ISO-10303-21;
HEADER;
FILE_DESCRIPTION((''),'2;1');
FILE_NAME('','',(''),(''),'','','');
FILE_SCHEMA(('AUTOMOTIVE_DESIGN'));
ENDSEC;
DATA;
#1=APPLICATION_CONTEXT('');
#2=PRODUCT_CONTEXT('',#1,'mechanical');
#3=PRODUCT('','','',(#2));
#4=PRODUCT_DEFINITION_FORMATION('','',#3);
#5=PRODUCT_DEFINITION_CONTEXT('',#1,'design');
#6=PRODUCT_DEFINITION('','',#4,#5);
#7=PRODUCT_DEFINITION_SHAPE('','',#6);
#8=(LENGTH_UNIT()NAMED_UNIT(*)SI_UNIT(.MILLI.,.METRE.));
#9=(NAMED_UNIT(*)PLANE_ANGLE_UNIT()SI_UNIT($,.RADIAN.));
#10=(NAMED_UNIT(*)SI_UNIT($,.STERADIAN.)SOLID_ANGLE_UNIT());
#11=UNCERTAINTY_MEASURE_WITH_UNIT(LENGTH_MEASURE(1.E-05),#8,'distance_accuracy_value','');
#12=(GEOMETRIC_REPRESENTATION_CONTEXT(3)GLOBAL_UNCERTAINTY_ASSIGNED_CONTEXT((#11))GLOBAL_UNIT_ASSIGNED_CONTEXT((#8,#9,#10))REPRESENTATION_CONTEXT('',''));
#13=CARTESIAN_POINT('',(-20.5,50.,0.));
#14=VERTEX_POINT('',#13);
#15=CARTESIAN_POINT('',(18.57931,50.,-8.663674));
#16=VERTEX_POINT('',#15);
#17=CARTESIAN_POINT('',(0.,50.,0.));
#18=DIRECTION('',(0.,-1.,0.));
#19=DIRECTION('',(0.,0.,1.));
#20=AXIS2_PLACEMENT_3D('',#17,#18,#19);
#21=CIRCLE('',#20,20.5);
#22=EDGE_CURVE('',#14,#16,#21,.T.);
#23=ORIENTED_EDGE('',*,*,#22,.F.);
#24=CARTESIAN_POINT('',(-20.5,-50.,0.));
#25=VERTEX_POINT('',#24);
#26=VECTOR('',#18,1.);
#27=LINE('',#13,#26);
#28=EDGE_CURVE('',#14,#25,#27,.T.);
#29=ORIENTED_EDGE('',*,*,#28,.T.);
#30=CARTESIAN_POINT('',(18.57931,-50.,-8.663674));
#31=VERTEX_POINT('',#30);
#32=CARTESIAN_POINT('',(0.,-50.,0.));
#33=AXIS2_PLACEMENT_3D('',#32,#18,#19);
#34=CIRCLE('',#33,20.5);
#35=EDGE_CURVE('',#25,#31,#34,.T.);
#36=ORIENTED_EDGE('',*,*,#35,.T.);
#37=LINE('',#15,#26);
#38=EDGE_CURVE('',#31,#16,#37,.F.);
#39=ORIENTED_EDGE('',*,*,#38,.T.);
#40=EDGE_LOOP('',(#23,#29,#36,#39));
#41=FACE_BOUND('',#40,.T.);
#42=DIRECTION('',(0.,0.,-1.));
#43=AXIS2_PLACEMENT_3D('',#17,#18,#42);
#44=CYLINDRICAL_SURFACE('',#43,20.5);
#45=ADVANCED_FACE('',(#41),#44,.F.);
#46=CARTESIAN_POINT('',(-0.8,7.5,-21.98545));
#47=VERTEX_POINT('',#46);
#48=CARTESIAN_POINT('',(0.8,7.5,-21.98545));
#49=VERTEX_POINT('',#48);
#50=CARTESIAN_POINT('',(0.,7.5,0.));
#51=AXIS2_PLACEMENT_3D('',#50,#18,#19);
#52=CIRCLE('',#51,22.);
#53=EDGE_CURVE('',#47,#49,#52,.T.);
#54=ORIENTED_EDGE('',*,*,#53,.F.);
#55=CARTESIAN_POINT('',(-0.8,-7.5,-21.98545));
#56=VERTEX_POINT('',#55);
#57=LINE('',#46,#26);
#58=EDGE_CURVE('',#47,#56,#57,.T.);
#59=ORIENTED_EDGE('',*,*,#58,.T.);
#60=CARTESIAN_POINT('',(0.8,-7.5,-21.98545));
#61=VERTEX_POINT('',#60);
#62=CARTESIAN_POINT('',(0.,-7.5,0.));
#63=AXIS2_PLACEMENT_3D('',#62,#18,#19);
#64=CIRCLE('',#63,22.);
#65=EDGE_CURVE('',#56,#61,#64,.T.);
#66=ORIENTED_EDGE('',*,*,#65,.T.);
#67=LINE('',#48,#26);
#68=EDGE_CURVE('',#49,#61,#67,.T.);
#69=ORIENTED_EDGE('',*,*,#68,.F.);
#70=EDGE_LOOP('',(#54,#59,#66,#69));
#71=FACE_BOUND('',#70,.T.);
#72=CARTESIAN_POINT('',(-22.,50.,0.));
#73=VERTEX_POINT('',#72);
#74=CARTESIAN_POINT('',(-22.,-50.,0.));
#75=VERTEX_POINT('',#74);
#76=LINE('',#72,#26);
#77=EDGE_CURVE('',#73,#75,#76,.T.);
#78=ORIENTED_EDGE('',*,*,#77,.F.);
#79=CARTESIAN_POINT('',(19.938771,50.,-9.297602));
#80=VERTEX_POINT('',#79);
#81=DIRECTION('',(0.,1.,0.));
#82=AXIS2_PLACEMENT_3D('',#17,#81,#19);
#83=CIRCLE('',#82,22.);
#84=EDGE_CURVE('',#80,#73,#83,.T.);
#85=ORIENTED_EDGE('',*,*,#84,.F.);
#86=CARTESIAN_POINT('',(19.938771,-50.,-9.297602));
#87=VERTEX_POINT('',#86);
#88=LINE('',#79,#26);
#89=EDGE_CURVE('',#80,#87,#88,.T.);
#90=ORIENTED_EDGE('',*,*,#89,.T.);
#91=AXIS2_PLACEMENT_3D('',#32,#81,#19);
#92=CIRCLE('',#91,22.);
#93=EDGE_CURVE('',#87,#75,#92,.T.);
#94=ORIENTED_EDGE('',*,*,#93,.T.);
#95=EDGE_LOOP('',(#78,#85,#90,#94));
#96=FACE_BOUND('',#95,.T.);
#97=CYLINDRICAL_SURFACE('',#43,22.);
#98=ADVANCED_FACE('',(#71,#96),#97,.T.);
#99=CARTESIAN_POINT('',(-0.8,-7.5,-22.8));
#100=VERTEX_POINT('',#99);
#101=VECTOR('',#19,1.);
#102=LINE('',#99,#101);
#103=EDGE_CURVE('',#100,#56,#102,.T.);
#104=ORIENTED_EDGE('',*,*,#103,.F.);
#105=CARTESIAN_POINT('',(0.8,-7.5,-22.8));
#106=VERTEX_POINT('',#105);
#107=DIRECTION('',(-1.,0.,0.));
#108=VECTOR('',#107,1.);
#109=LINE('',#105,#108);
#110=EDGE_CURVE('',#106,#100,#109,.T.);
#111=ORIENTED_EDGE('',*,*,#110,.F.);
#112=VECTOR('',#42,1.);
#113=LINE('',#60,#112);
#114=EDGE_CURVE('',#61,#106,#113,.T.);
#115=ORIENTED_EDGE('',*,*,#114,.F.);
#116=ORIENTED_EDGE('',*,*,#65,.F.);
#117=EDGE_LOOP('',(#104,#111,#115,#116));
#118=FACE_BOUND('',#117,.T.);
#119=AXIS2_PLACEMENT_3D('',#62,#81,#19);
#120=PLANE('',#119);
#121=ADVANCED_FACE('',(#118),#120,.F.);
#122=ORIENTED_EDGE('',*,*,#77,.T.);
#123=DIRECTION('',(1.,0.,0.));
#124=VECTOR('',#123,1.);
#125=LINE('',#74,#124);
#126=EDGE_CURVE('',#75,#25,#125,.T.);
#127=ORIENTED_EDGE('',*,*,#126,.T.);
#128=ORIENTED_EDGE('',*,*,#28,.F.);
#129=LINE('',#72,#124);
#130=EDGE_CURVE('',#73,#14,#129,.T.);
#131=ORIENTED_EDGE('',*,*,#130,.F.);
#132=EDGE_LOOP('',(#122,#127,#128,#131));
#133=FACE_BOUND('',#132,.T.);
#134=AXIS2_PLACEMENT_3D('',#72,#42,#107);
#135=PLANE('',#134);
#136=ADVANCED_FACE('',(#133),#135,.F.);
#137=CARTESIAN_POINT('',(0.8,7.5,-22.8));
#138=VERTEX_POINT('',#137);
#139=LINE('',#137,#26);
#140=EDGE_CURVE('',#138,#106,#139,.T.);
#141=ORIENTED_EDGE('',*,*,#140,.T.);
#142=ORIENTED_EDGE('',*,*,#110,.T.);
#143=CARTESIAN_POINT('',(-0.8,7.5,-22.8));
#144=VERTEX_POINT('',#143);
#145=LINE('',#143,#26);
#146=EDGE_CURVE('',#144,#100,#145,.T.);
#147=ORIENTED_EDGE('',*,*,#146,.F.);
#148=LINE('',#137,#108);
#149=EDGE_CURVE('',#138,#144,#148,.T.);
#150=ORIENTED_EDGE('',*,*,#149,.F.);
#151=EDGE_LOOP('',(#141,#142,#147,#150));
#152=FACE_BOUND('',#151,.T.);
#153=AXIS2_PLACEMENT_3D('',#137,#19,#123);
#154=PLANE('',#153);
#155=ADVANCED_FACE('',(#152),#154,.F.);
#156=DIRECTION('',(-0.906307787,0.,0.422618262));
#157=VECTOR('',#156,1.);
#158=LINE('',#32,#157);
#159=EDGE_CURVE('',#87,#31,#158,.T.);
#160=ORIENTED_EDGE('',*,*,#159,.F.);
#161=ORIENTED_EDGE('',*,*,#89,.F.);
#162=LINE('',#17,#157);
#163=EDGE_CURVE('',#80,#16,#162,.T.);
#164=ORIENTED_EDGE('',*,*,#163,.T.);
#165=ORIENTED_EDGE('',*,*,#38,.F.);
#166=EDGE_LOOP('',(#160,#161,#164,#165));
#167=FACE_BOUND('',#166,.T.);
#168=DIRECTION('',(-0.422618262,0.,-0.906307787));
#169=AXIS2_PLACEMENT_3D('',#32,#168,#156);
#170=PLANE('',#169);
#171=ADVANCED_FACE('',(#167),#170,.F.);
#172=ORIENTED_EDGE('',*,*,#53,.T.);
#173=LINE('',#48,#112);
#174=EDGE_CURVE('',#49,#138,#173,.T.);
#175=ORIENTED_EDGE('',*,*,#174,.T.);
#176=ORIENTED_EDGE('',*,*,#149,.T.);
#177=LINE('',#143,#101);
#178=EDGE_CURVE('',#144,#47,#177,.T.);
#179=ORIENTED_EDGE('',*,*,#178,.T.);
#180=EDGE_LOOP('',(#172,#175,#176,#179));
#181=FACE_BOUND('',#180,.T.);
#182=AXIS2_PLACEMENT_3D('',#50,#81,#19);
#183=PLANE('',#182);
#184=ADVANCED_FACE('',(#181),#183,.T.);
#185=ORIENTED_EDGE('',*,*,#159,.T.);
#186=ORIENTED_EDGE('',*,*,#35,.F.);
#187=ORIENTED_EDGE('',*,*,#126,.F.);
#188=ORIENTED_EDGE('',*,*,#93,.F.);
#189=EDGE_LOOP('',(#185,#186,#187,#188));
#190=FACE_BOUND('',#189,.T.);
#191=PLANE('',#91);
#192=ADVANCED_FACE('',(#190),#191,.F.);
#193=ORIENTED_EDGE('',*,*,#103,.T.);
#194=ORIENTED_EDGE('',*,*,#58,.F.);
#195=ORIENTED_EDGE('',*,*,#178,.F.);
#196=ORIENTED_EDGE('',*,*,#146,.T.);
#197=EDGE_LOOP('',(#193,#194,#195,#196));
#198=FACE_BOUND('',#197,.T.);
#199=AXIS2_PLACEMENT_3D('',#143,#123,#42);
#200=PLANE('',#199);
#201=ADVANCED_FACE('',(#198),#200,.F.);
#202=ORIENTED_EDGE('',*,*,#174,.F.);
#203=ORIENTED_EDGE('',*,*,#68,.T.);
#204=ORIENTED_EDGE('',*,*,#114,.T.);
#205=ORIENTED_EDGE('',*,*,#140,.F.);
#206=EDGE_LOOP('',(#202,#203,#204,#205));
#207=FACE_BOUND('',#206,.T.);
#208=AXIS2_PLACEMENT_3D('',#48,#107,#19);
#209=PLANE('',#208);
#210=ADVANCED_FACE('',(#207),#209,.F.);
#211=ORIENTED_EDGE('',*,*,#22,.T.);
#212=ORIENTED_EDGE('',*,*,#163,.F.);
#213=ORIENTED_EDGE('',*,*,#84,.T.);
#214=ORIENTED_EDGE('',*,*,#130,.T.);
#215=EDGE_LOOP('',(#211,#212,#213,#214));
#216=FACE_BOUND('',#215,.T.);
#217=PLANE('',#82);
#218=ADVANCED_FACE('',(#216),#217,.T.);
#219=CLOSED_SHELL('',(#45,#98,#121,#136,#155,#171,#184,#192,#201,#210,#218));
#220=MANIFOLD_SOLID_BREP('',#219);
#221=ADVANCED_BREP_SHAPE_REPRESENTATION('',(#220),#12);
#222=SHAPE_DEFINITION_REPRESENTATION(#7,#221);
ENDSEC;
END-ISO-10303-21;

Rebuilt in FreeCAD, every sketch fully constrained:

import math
import FreeCAD as App
import Part
import Sketcher

V = App.Vector
Q = App.Units.Quantity


def add_polygon(sketch, points):
    """Adds a closed chain of lines whose ends are joined by coincident constraints."""
    first, n = sketch.GeometryCount, len(points)
    for a, b in zip(points, points[1:] + points[:1]):
        sketch.addGeometry(Part.LineSegment(App.Vector(*a, 0), App.Vector(*b, 0)), False)
    for i in range(n):
        sketch.addConstraint(Sketcher.Constraint("Coincident", first + i, 2, first + (i + 1) % n, 1))

doc = App.newDocument("Part")
body = doc.addObject("PartDesign::Body", "Body")

sketch1 = doc.addObject("Sketcher::SketchObject", "Sketch")
body.addObject(sketch1)
sketch1.AttachmentSupport = (doc.XZ_Plane, [""])
sketch1.MapMode = "FlatFace"
sketch1.addGeometry([
    Part.LineSegment(V(-22, 0, 0), V(-20.5, 0, 0)),
    Part.ArcOfCircle(Part.Circle(V(0, 0, 0), V(0, 0, 1), 20.5), math.radians(180), math.radians(360)),
    Part.LineSegment(V(20.5, 0, 0), V(22, 0, 0)),
    Part.ArcOfCircle(Part.Circle(V(0, 0, 0), V(0, 0, 1), 22), math.radians(-87.916058), math.radians(0)),
    Part.ArcOfCircle(Part.Circle(V(0, 0, 0), V(0, 0, 1), 22), math.radians(180), math.radians(272.083942)),
], False)
sketch1.addConstraint([
    Sketcher.Constraint("Coincident", 0, 2, 1, 1),
    Sketcher.Constraint("Coincident", 1, 2, 2, 1),
    Sketcher.Constraint("Coincident", 2, 2, 3, 2),
    Sketcher.Constraint("Tangent", 3, 1, 4, 2),
    Sketcher.Constraint("Coincident", 4, 1, 0, 1),
    Sketcher.Constraint("Horizontal", 0),
    Sketcher.Constraint("Horizontal", 2),
    Sketcher.Constraint("Coincident", 1, 3, -1, 1),
    Sketcher.Constraint("Coincident", 3, 3, -1, 1),
    Sketcher.Constraint("Equal", 3, 4),
    Sketcher.Constraint("PointOnObject", 0, 2, -1),
    Sketcher.Constraint("PointOnObject", 1, 2, -1),
    Sketcher.Constraint("Radius", 3, 22.0),
    Sketcher.Constraint("Radius", 1, 20.5),
    Sketcher.Constraint("DistanceX", -1, 1, 3, 1, 0.8),
])
pad1 = doc.addObject("PartDesign::Pad", "Pad")
body.addObject(pad1)
pad1.Profile = sketch1
pad1.Length = 100
pad1.Midplane = True

sketch2 = doc.addObject("Sketcher::SketchObject", "Sketch001")
body.addObject(sketch2)
sketch2.AttachmentSupport = (doc.XZ_Plane, [""])
sketch2.MapMode = "FlatFace"
sketch2.addGeometry([
    Part.LineSegment(V(-0.8, -22.8, 0), V(-0.8, -21.98545, 0)),
    Part.ArcOfCircle(Part.Circle(V(0, 0, 0), V(0, 0, 1), 22), math.radians(-92.083942), math.radians(-87.916058)),
    Part.LineSegment(V(0.8, -21.98545, 0), V(0.8, -22.8, 0)),
    Part.LineSegment(V(0.8, -22.8, 0), V(-0.8, -22.8, 0)),
], False)
sketch2.addConstraint([
    Sketcher.Constraint("Coincident", 0, 2, 1, 1),
    Sketcher.Constraint("Coincident", 1, 2, 2, 1),
    Sketcher.Constraint("Coincident", 2, 2, 3, 1),
    Sketcher.Constraint("Coincident", 3, 2, 0, 1),
    Sketcher.Constraint("Vertical", 0),
    Sketcher.Constraint("Vertical", 2),
    Sketcher.Constraint("Horizontal", 3),
    Sketcher.Constraint("Coincident", 1, 3, -1, 1),
    Sketcher.Constraint("Horizontal", 0, 2, 1, 2),
    Sketcher.Constraint("Radius", 1, 22.0),
    Sketcher.Constraint("DistanceX", 3, 2, 3, 1, 1.6),
    Sketcher.Constraint("DistanceY", 2, 2, -1, 1, 22.8),
])
pad2 = doc.addObject("PartDesign::Pad", "Pad001")
body.addObject(pad2)
pad2.Profile = sketch2
pad2.Length = 15
pad2.Midplane = True

sketch3 = doc.addObject("Sketcher::SketchObject", "Sketch002")
body.addObject(sketch3)
sketch3.AttachmentSupport = (doc.XZ_Plane, [""])
sketch3.MapMode = "FlatFace"
sketch3.AttachmentOffset = App.Placement(V(0, 0, -50), App.Rotation())
add_polygon(sketch3, [(22, -10.258768), (0, 0), (22, 0)])
sketch3.addConstraint([
    Sketcher.Constraint("Horizontal", 1),
    Sketcher.Constraint("Vertical", 2),
    Sketcher.Constraint("Coincident", 0, 2, -1, 1),
    Sketcher.Constraint("DistanceX", 1, 1, 1, 2, 22.0),
    Sketcher.Constraint("Angle", 0, Q("155 deg")),
])
pocket1 = doc.addObject("PartDesign::Pocket", "Pocket")
body.addObject(pocket1)
pocket1.Profile = sketch3
pocket1.Type = "ThroughAll"
pocket1.Reversed = True

doc.recompute()
